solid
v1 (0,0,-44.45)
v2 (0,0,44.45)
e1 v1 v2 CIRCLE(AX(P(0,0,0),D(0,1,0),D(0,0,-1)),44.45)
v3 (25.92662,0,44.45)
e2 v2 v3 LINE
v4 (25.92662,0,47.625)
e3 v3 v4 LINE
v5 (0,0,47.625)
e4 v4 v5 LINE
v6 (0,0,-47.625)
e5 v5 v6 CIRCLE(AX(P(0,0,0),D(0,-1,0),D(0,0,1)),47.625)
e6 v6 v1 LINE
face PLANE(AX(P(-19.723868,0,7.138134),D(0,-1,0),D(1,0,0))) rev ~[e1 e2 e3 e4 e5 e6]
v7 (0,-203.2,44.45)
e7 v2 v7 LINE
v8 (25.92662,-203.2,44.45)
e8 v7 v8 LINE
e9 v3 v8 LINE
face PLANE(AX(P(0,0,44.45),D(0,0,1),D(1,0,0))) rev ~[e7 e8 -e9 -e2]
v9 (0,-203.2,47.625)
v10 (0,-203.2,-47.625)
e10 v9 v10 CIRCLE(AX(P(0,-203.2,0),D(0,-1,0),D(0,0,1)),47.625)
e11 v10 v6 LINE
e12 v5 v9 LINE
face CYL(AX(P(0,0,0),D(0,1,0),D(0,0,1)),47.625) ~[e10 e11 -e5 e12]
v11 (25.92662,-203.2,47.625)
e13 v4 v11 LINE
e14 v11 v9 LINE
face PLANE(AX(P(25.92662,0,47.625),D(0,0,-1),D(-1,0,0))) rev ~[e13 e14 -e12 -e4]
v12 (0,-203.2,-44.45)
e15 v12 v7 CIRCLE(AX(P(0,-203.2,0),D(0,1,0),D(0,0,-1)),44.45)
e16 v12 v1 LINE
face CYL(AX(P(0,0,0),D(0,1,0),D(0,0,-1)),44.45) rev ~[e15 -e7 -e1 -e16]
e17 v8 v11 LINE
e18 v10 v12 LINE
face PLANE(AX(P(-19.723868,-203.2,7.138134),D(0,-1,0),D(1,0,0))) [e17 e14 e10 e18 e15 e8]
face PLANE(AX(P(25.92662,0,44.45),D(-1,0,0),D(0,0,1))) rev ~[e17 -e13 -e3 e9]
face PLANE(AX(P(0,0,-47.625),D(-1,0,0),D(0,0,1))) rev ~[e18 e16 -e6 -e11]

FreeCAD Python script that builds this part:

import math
import FreeCAD as App
import Part
import Sketcher
Q = App.Units.Quantity

doc = App.newDocument("Part")
params = doc.addObject("Spreadsheet::Sheet", "Params")
for row, (alias, value) in enumerate([
    ("sketch1_radius", "1.75 in"),
    ("sketch1_radius2", "1.875 in"),
    ("pad1_length", "8 in"),
    ("sketch2_radius", "1.75 in"),
    ("sketch2_radius2", "1.875 in"),
    ("pad2_length", "1 in"),
], start=1):
    params.set(f"A{row}", alias)
    params.set(f"B{row}", "=" + value)
    params.setAlias(f"B{row}", alias)

body = doc.addObject("PartDesign::Body", "Body")

sketch1 = body.newObject("Sketcher::SketchObject", "Sketch")
sketch1.AttachmentSupport = (doc.getObject("XZ_Plane"), [""])
sketch1.MapMode = "FlatFace"
sketch1.addGeometry(Part.ArcOfCircle(Part.Circle(App.Vector(0, 0, 0), App.Vector(0, 0, 1), 44.5), math.radians(90), math.radians(270)), False)
sketch1.addGeometry(Part.LineSegment(App.Vector(0, 44.5, 0), App.Vector(25.9, 44.5, 0)), False)
sketch1.addGeometry(Part.LineSegment(App.Vector(25.9, 44.5, 0), App.Vector(25.9, 47.6, 0)), False)
sketch1.addGeometry(Part.LineSegment(App.Vector(25.9, 47.6, 0), App.Vector(0, 47.6, 0)), False)
sketch1.addGeometry(Part.ArcOfCircle(Part.Circle(App.Vector(0, 0, 0), App.Vector(0, 0, 1), 47.6), math.radians(90), math.radians(270)), False)
sketch1.addGeometry(Part.LineSegment(App.Vector(0, -47.6, 0), App.Vector(0, -44.5, 0)), False)
sketch1.addConstraint(Sketcher.Constraint("Tangent", 0, 1, 1, 1))
sketch1.addConstraint(Sketcher.Constraint("Coincident", 1, 2, 2, 1))
sketch1.addConstraint(Sketcher.Constraint("Coincident", 2, 2, 3, 1))
sketch1.addConstraint(Sketcher.Constraint("Tangent", 3, 2, 4, 1))
sketch1.addConstraint(Sketcher.Constraint("Coincident", 4, 2, 5, 1))
sketch1.addConstraint(Sketcher.Constraint("Coincident", 5, 2, 0, 2))
sketch1.addConstraint(Sketcher.Constraint("Horizontal", 1))
sketch1.addConstraint(Sketcher.Constraint("Vertical", 2))
sketch1.addConstraint(Sketcher.Constraint("Horizontal", 3))
sketch1.addConstraint(Sketcher.Constraint("Vertical", 5))
sketch1.addConstraint(Sketcher.Constraint("Coincident", 0, 3, -1, 1))
sketch1.addConstraint(Sketcher.Constraint("Coincident", 4, 3, -1, 1))
sketch1.addConstraint(Sketcher.Constraint("PointOnObject", 4, 2, -2))
sketch1.addConstraint(Sketcher.Constraint("Radius", 0, Q("1.75 in")))
sketch1.addConstraint(Sketcher.Constraint("Radius", 4, Q("1.875 in")))
sketch1.addConstraint(Sketcher.Constraint("DistanceX", 1, 1, 1, 2, Q("25.92662 mm")))
sketch1.setExpression("Constraints[13]", "Params.sketch1_radius")
sketch1.setExpression("Constraints[14]", "Params.sketch1_radius2")
pad1 = body.newObject("PartDesign::Pad", "Pad")
pad1.Profile = sketch1
pad1.setExpression("Length", "Params.pad1_length")

sketch2 = body.newObject("Sketcher::SketchObject", "Sketch001")
sketch2.AttachmentSupport = (doc.getObject("XZ_Plane"), [""])
sketch2.MapMode = "FlatFace"
sketch2.addGeometry(Part.ArcOfCircle(Part.Circle(App.Vector(0, 0, 0), App.Vector(0, 0, 1), 44.5), math.radians(90), math.radians(270)), False)
sketch2.addGeometry(Part.LineSegment(App.Vector(0, 44.5, 0), App.Vector(25.9, 44.5, 0)), False)
sketch2.addGeometry(Part.LineSegment(App.Vector(25.9, 44.5, 0), App.Vector(25.9, 47.6, 0)), False)
sketch2.addGeometry(Part.LineSegment(App.Vector(25.9, 47.6, 0), App.Vector(0, 47.6, 0)), False)
sketch2.addGeometry(Part.ArcOfCircle(Part.Circle(App.Vector(0, 0, 0), App.Vector(0, 0, 1), 47.6), math.radians(90), math.radians(270)), False)
sketch2.addGeometry(Part.LineSegment(App.Vector(0, -47.6, 0), App.Vector(0, -44.5, 0)), False)
sketch2.addConstraint(Sketcher.Constraint("Tangent", 0, 1, 1, 1))
sketch2.addConstraint(Sketcher.Constraint("Coincident", 1, 2, 2, 1))
sketch2.addConstraint(Sketcher.Constraint("Coincident", 2, 2, 3, 1))
sketch2.addConstraint(Sketcher.Constraint("Tangent", 3, 2, 4, 1))
sketch2.addConstraint(Sketcher.Constraint("Coincident", 4, 2, 5, 1))
sketch2.addConstraint(Sketcher.Constraint("Coincident", 5, 2, 0, 2))
sketch2.addConstraint(Sketcher.Constraint("Horizontal", 1))
sketch2.addConstraint(Sketcher.Constraint("Vertical", 2))
sketch2.addConstraint(Sketcher.Constraint("Horizontal", 3))
sketch2.addConstraint(Sketcher.Constraint("Vertical", 5))
sketch2.addConstraint(Sketcher.Constraint("Coincident", 0, 3, -1, 1))
sketch2.addConstraint(Sketcher.Constraint("Coincident", 4, 3, -1, 1))
sketch2.addConstraint(Sketcher.Constraint("PointOnObject", 4, 2, -2))
sketch2.addConstraint(Sketcher.Constraint("Radius", 0, Q("1.75 in")))
sketch2.addConstraint(Sketcher.Constraint("Radius", 4, Q("1.875 in")))
sketch2.addConstraint(Sketcher.Constraint("DistanceX", 1, 1, 1, 2, Q("25.92662 mm")))
sketch2.setExpression("Constraints[13]", "Params.sketch2_radius")
sketch2.setExpression("Constraints[14]", "Params.sketch2_radius2")
pad2 = body.newObject("PartDesign::Pad", "Pad001")
pad2.Profile = sketch2
pad2.setExpression("Length", "Params.pad2_length")

doc.recompute()
